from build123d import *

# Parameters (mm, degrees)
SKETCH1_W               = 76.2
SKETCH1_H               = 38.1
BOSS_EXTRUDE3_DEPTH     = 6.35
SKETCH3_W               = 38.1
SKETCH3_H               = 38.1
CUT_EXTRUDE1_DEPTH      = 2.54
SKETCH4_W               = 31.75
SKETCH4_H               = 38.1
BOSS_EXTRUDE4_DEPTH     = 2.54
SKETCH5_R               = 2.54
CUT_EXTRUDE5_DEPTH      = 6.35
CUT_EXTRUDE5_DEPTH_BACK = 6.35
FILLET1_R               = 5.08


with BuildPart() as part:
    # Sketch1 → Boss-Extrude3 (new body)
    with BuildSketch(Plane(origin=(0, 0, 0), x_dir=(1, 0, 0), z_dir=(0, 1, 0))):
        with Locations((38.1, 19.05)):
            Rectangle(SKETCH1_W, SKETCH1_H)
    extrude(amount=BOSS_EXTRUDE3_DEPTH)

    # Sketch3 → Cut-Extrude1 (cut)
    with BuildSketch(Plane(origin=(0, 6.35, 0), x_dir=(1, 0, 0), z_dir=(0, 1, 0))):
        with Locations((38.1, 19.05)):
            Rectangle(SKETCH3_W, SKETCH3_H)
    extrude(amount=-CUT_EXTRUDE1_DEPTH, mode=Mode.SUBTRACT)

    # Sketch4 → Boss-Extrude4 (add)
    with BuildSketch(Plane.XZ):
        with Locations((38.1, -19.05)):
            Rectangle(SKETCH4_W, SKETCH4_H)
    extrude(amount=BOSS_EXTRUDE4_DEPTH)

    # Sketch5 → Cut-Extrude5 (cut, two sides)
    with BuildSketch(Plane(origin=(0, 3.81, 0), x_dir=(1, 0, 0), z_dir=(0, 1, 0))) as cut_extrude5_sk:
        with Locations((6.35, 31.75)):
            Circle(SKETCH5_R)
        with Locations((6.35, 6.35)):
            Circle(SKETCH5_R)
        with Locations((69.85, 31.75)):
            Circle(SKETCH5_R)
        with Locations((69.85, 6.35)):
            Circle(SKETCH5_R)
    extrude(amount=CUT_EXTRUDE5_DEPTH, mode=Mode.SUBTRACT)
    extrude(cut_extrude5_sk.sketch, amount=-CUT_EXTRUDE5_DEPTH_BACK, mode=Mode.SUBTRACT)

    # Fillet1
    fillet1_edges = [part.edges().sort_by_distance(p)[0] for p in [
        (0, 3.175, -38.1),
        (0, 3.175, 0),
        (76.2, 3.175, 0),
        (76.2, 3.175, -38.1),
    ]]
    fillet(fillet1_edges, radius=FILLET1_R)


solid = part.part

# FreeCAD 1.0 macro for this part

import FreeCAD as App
import Part
import Sketcher

V = App.Vector
Q = App.Units.Quantity


def edges_at(feature, points):
    """Names of the edges that pass closest to the given points."""
    edges = feature.Shape.Edges
    near = lambda p: min(range(len(edges)), key=lambda i: edges[i].distToShape(Part.Vertex(*p))[0])
    return sorted({f"Edge{near(p) + 1}" for p in points})

doc = App.newDocument("Part")
body = doc.addObject("PartDesign::Body", "Body")

# Sketch on XZ plane
sketch1 = body.newObject("Sketcher::SketchObject", "Sketch")
sketch1.AttachmentSupport = (doc.getObject("XZ_Plane"), [""])
sketch1.MapMode = "FlatFace"
sketch1.addGeometry([
    Part.LineSegment(V(0, -38.1, 0), V(0, 0, 0)),
    Part.LineSegment(V(0, 0, 0), V(76.2, 0, 0)),
    Part.LineSegment(V(76.2, 0, 0), V(76.2, -38.1, 0)),
    Part.LineSegment(V(76.2, -38.1, 0), V(0, -38.1, 0)),
], False)
sketch1.addConstraint([
    Sketcher.Constraint("Coincident", 0, 2, 1, 1),
    Sketcher.Constraint("Coincident", 1, 2, 2, 1),
    Sketcher.Constraint("Coincident", 2, 2, 3, 1),
    Sketcher.Constraint("Coincident", 3, 2, 0, 1),
    Sketcher.Constraint("Vertical", 0),
    Sketcher.Constraint("Horizontal", 1),
    Sketcher.Constraint("Vertical", 2),
    Sketcher.Constraint("Horizontal", 3),
    Sketcher.Constraint("Coincident", 0, 2, -1, 1),
    Sketcher.Constraint("DistanceX", 1, 1, 1, 2, Q("3 in")),
    Sketcher.Constraint("DistanceY", 0, 1, 0, 2, Q("1.5 in")),
])
pad1 = body.newObject("PartDesign::Pad", "Pad")
pad1.Profile = sketch1
pad1.Length = Q("0.25 in")
pad1.Reversed = True

# Sketch on XZ plane
sketch2 = body.newObject("Sketcher::SketchObject", "Sketch001")
sketch2.AttachmentSupport = (doc.getObject("XZ_Plane"), [""])
sketch2.MapMode = "FlatFace"
sketch2.AttachmentOffset = App.Placement(V(0, 0, -0.25 * 25.4), App.Rotation())
sketch2.addGeometry([
    Part.LineSegment(V(19.05, -38.1, 0), V(19.05, 0, 0)),
    Part.LineSegment(V(19.05, 0, 0), V(57.15, 0, 0)),
    Part.LineSegment(V(57.15, 0, 0), V(57.15, -38.1, 0)),
    Part.LineSegment(V(57.15, -38.1, 0), V(19.05, -38.1, 0)),
], False)
sketch2.addConstraint([
    Sketcher.Constraint("Coincident", 0, 2, 1, 1),
    Sketcher.Constraint("Coincident", 1, 2, 2, 1),
    Sketcher.Constraint("Coincident", 2, 2, 3, 1),
    Sketcher.Constraint("Coincident", 3, 2, 0, 1),
    Sketcher.Constraint("Vertical", 0),
    Sketcher.Constraint("Horizontal", 1),
    Sketcher.Constraint("Vertical", 2),
    Sketcher.Constraint("Horizontal", 3),
    Sketcher.Constraint("PointOnObject", 0, 2, -1),
    Sketcher.Constraint("Equal", 3, 0),
    Sketcher.Constraint("DistanceX", 1, 1, 1, 2, Q("1.5 in")),
    Sketcher.Constraint("DistanceX", -1, 1, 0, 2, Q("0.75 in")),
])
pocket1 = body.newObject("PartDesign::Pocket", "Pocket")
pocket1.Profile = sketch2
pocket1.Length = Q("0.1 in")
pocket1.Reversed = True

# Sketch on XZ plane
sketch3 = body.newObject("Sketcher::SketchObject", "Sketch002")
sketch3.AttachmentSupport = (doc.getObject("XZ_Plane"), [""])
sketch3.MapMode = "FlatFace"
sketch3.addGeometry([
    Part.LineSegment(V(22.225, 0, 0), V(22.225, -38.1, 0)),
    Part.LineSegment(V(22.225, -38.1, 0), V(53.975, -38.1, 0)),
    Part.LineSegment(V(53.975, -38.1, 0), V(53.975, 0, 0)),
    Part.LineSegment(V(53.975, 0, 0), V(22.225, 0, 0)),
], False)
sketch3.addConstraint([
    Sketcher.Constraint("Coincident", 0, 2, 1, 1),
    Sketcher.Constraint("Coincident", 1, 2, 2, 1),
    Sketcher.Constraint("Coincident", 2, 2, 3, 1),
    Sketcher.Constraint("Coincident", 3, 2, 0, 1),
    Sketcher.Constraint("Vertical", 0),
    Sketcher.Constraint("Horizontal", 1),
    Sketcher.Constraint("Vertical", 2),
    Sketcher.Constraint("Horizontal", 3),
    Sketcher.Constraint("PointOnObject", 2, 2, -1),
    Sketcher.Constraint("DistanceY", 0, 2, 0, 1, Q("1.5 in")),
    Sketcher.Constraint("DistanceX", 1, 1, 1, 2, Q("1.25 in")),
    Sketcher.Constraint("DistanceX", -1, 1, 0, 2, Q("0.875 in")),
])
pad2 = body.newObject("PartDesign::Pad", "Pad001")
pad2.Profile = sketch3
pad2.Length = Q("0.1 in")

# Sketch on XZ plane
sketch4 = body.newObject("Sketcher::SketchObject", "Sketch003")
sketch4.AttachmentSupport = (doc.getObject("XZ_Plane"), [""])
sketch4.MapMode = "FlatFace"
sketch4.AttachmentOffset = App.Placement(V(0, 0, -0.15 * 25.4), App.Rotation())
sketch4.addGeometry([
    Part.Circle(V(6.35, -31.75, 0), V(0, 0, 1), 2.54),
    Part.Circle(V(6.35, -6.35, 0), V(0, 0, 1), 2.54),
    Part.Circle(V(69.85, -31.75, 0), V(0, 0, 1), 2.54),
    Part.Circle(V(69.85, -6.35, 0), V(0, 0, 1), 2.54),
], False)
sketch4.addConstraint([
    Sketcher.Constraint("Equal", 0, 1),
    Sketcher.Constraint("Equal", 1, 2),
    Sketcher.Constraint("Equal", 2, 3),
    Sketcher.Constraint("Horizontal", 0, 3, 2, 3),
    Sketcher.Constraint("Horizontal", 1, 3, 3, 3),
    Sketcher.Constraint("Vertical", 0, 3, 1, 3),
    Sketcher.Constraint("Vertical", 2, 3, 3, 3),
    Sketcher.Constraint("Diameter", 0, Q("0.2 in")),
    Sketcher.Constraint("DistanceY", 0, 3, 1, 3, Q("1 in")),
    Sketcher.Constraint("DistanceX", 0, 3, 2, 3, Q("2.5 in")),
    Sketcher.Constraint("DistanceX", -1, 1, 0, 3, Q("0.25 in")),
    Sketcher.Constraint("DistanceY", 0, 3, -1, 1, Q("1.25 in")),
])
pocket2 = body.newObject("PartDesign::Pocket", "Pocket001")
pocket2.Profile = sketch4
pocket2.Type = "ThroughAll"
pocket2.Midplane = True
doc.recompute()

fillet = body.newObject("PartDesign::Fillet", "Fillet")
fillet.Base = (pocket2, edges_at(pocket2, [
    (0, 3.175, -38.1),
    (0, 3.175, 0),
    (76.2, 3.175, 0),
    (76.2, 3.175, -38.1),
]))
fillet.Radius = Q("0.2 in")

doc.recompute()
